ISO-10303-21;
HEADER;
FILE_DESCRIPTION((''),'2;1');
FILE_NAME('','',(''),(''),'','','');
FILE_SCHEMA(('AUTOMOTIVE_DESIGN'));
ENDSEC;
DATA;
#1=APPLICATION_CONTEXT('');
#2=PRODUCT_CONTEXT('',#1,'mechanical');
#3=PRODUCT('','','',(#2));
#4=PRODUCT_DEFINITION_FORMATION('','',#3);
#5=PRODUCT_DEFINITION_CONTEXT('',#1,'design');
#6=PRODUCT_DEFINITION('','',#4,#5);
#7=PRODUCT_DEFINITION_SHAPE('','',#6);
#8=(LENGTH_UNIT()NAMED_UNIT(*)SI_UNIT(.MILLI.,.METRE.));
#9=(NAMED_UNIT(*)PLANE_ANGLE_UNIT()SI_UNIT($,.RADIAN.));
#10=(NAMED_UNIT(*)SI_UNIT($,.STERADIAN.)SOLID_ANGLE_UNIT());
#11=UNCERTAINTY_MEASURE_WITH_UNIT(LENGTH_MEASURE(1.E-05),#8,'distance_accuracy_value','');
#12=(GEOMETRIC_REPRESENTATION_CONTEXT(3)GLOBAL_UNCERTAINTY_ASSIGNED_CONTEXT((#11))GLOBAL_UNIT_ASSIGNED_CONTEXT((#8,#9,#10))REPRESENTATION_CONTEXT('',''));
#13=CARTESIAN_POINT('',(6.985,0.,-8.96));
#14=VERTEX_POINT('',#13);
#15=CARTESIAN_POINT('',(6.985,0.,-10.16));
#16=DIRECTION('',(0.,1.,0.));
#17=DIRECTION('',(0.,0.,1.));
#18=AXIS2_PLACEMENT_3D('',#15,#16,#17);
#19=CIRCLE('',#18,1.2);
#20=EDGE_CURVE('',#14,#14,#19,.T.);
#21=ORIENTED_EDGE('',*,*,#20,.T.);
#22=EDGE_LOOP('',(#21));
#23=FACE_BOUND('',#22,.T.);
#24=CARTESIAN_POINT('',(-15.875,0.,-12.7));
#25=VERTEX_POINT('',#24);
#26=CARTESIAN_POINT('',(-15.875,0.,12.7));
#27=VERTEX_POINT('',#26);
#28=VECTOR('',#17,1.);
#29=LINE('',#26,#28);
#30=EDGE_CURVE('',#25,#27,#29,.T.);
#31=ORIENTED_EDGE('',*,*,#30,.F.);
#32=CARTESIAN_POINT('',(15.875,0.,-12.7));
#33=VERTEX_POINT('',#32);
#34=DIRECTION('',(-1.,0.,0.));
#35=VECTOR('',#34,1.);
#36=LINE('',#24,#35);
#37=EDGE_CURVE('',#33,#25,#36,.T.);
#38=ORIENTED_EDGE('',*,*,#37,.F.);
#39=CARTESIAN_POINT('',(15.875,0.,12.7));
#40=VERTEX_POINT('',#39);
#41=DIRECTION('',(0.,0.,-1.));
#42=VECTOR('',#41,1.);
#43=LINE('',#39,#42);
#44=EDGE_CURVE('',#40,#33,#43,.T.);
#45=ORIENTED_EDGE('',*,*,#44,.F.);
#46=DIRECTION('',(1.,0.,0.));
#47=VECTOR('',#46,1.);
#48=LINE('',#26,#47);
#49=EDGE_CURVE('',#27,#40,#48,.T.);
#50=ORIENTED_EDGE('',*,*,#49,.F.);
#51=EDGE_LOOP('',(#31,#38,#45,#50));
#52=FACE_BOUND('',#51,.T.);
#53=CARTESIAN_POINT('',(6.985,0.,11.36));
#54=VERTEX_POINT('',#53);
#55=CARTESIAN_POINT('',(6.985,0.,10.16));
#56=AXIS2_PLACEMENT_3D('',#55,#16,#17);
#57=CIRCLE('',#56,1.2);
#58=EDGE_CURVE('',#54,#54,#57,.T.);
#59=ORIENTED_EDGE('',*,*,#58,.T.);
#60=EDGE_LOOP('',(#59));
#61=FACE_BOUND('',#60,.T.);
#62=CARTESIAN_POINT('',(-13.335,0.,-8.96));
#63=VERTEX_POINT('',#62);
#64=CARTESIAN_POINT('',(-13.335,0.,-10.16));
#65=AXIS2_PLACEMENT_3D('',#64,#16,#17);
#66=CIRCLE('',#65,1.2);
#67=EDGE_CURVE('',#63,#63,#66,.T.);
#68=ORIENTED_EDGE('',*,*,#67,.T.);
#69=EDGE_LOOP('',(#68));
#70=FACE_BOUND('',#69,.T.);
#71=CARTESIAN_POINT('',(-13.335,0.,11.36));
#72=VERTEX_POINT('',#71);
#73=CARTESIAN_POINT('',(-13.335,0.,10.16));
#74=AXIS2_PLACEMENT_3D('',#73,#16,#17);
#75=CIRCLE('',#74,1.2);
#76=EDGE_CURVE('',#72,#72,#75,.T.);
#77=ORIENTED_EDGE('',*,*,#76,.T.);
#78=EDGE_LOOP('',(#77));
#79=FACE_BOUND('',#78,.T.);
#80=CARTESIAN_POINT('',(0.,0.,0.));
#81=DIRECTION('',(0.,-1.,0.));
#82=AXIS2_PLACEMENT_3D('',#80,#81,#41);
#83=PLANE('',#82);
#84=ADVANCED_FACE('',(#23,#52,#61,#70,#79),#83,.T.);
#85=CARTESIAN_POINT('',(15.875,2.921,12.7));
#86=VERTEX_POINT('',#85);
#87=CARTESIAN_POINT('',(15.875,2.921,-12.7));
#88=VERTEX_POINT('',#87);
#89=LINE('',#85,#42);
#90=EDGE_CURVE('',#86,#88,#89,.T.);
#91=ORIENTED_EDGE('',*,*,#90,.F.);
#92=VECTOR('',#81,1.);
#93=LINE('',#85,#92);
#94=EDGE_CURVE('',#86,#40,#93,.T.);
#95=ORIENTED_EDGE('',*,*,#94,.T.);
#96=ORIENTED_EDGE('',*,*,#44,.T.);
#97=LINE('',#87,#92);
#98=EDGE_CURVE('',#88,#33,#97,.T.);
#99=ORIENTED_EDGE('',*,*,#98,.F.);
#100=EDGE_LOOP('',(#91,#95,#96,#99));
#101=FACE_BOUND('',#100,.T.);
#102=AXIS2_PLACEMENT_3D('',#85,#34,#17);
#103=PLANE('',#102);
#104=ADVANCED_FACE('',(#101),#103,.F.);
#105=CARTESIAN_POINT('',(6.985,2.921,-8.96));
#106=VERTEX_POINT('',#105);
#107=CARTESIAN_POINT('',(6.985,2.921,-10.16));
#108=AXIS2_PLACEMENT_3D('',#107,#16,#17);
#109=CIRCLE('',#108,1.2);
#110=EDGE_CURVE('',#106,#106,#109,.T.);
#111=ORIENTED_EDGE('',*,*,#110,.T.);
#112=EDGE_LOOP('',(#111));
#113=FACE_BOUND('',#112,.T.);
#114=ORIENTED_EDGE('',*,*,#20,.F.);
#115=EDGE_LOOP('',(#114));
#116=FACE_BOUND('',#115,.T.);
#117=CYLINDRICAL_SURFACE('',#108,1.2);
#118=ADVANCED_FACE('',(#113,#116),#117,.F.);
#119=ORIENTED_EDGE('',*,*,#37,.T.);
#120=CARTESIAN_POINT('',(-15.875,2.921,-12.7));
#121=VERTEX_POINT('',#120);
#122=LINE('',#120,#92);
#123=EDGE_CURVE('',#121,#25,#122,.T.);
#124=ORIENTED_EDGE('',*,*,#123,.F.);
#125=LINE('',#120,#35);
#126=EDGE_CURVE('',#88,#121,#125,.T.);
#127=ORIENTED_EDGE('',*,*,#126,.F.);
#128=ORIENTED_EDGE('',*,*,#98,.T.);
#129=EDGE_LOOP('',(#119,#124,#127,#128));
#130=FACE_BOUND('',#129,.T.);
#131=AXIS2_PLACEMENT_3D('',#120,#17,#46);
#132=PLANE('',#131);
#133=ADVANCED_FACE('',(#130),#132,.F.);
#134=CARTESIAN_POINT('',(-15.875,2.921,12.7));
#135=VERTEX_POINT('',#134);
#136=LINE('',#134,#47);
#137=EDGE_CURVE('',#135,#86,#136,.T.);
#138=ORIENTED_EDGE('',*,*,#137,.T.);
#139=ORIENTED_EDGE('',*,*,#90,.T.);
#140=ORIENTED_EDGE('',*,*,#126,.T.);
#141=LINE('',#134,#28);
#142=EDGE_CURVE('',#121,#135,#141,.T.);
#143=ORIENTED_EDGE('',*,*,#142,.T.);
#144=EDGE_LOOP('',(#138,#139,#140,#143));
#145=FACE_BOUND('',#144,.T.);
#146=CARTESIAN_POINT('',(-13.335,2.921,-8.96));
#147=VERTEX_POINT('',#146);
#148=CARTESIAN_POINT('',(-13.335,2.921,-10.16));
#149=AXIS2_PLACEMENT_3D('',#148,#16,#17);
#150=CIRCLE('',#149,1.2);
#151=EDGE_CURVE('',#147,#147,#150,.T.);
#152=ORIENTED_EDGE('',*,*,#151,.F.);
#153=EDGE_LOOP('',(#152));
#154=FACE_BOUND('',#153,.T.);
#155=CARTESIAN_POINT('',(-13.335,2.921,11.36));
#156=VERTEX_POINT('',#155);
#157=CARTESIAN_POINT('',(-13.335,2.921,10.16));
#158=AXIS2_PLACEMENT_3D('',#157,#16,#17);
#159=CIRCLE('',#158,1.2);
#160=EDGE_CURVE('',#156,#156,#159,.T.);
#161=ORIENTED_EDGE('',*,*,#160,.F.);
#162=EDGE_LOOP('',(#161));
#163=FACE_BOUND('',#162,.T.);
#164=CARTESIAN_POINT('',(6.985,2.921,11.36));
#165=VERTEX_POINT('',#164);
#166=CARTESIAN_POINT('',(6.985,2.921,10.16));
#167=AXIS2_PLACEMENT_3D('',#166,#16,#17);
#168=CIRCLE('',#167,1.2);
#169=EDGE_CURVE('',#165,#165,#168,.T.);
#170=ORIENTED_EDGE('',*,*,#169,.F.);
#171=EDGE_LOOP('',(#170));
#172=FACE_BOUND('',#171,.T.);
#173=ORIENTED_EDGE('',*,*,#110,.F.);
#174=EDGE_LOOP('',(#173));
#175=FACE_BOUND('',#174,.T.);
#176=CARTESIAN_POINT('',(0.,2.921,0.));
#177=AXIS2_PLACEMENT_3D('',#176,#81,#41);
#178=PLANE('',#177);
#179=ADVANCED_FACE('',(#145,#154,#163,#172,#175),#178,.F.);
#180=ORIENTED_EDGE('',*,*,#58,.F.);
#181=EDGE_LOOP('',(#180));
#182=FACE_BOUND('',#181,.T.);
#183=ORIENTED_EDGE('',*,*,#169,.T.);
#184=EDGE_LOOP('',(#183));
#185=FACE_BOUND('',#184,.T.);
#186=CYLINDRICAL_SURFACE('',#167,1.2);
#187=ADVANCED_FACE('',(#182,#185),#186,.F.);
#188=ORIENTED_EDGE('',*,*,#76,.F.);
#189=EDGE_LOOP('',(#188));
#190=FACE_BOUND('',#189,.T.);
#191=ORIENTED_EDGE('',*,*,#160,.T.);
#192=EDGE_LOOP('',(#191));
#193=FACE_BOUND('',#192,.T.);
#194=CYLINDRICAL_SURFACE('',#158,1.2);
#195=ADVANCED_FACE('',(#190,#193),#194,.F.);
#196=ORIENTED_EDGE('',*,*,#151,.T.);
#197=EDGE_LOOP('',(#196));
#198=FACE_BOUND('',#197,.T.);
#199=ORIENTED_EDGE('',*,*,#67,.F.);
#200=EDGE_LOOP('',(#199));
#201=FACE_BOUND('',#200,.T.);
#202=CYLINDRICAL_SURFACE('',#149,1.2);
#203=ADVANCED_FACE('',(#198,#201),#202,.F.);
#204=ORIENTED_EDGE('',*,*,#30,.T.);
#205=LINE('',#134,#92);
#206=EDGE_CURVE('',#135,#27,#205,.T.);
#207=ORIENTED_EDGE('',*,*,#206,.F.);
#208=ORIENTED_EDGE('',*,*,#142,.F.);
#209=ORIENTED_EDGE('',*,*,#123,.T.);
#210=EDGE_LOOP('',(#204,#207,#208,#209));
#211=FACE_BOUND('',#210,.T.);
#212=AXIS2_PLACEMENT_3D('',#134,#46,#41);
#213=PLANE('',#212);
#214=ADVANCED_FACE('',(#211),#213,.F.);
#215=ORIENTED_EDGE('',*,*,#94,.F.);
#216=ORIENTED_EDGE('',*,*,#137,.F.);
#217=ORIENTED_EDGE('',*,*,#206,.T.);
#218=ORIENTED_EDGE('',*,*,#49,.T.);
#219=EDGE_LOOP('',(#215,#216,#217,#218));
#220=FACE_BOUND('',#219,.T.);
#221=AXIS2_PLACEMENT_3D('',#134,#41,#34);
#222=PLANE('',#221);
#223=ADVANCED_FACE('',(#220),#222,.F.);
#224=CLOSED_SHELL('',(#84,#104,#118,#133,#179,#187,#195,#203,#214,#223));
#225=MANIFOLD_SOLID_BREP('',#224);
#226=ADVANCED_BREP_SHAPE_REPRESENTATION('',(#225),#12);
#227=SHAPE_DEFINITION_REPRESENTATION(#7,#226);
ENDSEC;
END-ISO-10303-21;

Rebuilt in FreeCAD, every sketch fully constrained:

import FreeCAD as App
import Part
import Sketcher

V = App.Vector
Q = App.Units.Quantity


def add_polygon(sketch, points):
    """Adds a closed chain of lines whose ends are joined by coincident constraints."""
    first, n = sketch.GeometryCount, len(points)
    for a, b in zip(points, points[1:] + points[:1]):
        sketch.addGeometry(Part.LineSegment(App.Vector(*a, 0), App.Vector(*b, 0)), False)
    for i in range(n):
        sketch.addConstraint(Sketcher.Constraint("Coincident", first + i, 2, first + (i + 1) % n, 1))

doc = App.newDocument("Part")
body = doc.addObject("PartDesign::Body", "Body")

sketch1 = doc.addObject("Sketcher::SketchObject", "Sketch")
body.addObject(sketch1)
sketch1.AttachmentSupport = (doc.XZ_Plane, [""])
sketch1.MapMode = "FlatFace"
add_polygon(sketch1, [(-16, -13), (-16, 13), (16, 13), (16, -13)])
sketch1.addConstraint([
    Sketcher.Constraint("Vertical", 0),
    Sketcher.Constraint("Horizontal", 1),
    Sketcher.Constraint("Vertical", 2),
    Sketcher.Constraint("Horizontal", 3),
    Sketcher.Constraint("Symmetric", 0, 2, 2, 2, -1, 1),
    Sketcher.Constraint("DistanceY", 0, 1, 0, 2, Q("1 in")),
    Sketcher.Constraint("DistanceX", 1, 1, 1, 2, Q("1.25 in")),
])
pad1 = doc.addObject("PartDesign::Pad", "Pad")
body.addObject(pad1)
pad1.Profile = sketch1
pad1.Length = Q("0.115 in")
pad1.Reversed = True

sketch2 = doc.addObject("Sketcher::SketchObject", "Sketch001")
body.addObject(sketch2)
sketch2.AttachmentSupport = (doc.XZ_Plane, [""])
sketch2.MapMode = "FlatFace"
sketch2.AttachmentOffset = App.Placement(V(0, 0, -0.115 * 25.4), App.Rotation())
sketch2.addGeometry([
    Part.Circle(V(-13.3, -10.2, 0), V(0, 0, 1), 1.2),
    Part.Circle(V(7, -10.2, 0), V(0, 0, 1), 1.2),
    Part.Circle(V(7, 10.2, 0), V(0, 0, 1), 1.2),
    Part.Circle(V(-13.3, 10.2, 0), V(0, 0, 1), 1.2),
], False)
sketch2.addConstraint([
    Sketcher.Constraint("Equal", 0, 1),
    Sketcher.Constraint("Equal", 1, 2),
    Sketcher.Constraint("Equal", 2, 3),
    Sketcher.Constraint("Symmetric", 1, 3, 2, 3, -1),
    Sketcher.Constraint("Symmetric", 0, 3, 3, 3, -1),
    Sketcher.Constraint("Horizontal", 0, 3, 1, 3),
    Sketcher.Constraint("DistanceY", 0, 3, -1, 1, Q("0.4 in")),
    Sketcher.Constraint("DistanceX", 0, 3, 1, 3, Q("0.8 in")),
    Sketcher.Constraint("Diameter", 0, Q("2.4 mm")),
    Sketcher.Constraint("DistanceX", 0, 3, -1, 1, Q("0.525 in")),
])
doc.recompute()
hole = doc.addObject("PartDesign::Hole", "Hole")
body.addObject(hole)
hole.Profile = sketch2
hole.ThreadType = "None"
hole.Diameter = 2.4
hole.DepthType = "ThroughAll"
hole.Reversed = True

doc.recompute()
